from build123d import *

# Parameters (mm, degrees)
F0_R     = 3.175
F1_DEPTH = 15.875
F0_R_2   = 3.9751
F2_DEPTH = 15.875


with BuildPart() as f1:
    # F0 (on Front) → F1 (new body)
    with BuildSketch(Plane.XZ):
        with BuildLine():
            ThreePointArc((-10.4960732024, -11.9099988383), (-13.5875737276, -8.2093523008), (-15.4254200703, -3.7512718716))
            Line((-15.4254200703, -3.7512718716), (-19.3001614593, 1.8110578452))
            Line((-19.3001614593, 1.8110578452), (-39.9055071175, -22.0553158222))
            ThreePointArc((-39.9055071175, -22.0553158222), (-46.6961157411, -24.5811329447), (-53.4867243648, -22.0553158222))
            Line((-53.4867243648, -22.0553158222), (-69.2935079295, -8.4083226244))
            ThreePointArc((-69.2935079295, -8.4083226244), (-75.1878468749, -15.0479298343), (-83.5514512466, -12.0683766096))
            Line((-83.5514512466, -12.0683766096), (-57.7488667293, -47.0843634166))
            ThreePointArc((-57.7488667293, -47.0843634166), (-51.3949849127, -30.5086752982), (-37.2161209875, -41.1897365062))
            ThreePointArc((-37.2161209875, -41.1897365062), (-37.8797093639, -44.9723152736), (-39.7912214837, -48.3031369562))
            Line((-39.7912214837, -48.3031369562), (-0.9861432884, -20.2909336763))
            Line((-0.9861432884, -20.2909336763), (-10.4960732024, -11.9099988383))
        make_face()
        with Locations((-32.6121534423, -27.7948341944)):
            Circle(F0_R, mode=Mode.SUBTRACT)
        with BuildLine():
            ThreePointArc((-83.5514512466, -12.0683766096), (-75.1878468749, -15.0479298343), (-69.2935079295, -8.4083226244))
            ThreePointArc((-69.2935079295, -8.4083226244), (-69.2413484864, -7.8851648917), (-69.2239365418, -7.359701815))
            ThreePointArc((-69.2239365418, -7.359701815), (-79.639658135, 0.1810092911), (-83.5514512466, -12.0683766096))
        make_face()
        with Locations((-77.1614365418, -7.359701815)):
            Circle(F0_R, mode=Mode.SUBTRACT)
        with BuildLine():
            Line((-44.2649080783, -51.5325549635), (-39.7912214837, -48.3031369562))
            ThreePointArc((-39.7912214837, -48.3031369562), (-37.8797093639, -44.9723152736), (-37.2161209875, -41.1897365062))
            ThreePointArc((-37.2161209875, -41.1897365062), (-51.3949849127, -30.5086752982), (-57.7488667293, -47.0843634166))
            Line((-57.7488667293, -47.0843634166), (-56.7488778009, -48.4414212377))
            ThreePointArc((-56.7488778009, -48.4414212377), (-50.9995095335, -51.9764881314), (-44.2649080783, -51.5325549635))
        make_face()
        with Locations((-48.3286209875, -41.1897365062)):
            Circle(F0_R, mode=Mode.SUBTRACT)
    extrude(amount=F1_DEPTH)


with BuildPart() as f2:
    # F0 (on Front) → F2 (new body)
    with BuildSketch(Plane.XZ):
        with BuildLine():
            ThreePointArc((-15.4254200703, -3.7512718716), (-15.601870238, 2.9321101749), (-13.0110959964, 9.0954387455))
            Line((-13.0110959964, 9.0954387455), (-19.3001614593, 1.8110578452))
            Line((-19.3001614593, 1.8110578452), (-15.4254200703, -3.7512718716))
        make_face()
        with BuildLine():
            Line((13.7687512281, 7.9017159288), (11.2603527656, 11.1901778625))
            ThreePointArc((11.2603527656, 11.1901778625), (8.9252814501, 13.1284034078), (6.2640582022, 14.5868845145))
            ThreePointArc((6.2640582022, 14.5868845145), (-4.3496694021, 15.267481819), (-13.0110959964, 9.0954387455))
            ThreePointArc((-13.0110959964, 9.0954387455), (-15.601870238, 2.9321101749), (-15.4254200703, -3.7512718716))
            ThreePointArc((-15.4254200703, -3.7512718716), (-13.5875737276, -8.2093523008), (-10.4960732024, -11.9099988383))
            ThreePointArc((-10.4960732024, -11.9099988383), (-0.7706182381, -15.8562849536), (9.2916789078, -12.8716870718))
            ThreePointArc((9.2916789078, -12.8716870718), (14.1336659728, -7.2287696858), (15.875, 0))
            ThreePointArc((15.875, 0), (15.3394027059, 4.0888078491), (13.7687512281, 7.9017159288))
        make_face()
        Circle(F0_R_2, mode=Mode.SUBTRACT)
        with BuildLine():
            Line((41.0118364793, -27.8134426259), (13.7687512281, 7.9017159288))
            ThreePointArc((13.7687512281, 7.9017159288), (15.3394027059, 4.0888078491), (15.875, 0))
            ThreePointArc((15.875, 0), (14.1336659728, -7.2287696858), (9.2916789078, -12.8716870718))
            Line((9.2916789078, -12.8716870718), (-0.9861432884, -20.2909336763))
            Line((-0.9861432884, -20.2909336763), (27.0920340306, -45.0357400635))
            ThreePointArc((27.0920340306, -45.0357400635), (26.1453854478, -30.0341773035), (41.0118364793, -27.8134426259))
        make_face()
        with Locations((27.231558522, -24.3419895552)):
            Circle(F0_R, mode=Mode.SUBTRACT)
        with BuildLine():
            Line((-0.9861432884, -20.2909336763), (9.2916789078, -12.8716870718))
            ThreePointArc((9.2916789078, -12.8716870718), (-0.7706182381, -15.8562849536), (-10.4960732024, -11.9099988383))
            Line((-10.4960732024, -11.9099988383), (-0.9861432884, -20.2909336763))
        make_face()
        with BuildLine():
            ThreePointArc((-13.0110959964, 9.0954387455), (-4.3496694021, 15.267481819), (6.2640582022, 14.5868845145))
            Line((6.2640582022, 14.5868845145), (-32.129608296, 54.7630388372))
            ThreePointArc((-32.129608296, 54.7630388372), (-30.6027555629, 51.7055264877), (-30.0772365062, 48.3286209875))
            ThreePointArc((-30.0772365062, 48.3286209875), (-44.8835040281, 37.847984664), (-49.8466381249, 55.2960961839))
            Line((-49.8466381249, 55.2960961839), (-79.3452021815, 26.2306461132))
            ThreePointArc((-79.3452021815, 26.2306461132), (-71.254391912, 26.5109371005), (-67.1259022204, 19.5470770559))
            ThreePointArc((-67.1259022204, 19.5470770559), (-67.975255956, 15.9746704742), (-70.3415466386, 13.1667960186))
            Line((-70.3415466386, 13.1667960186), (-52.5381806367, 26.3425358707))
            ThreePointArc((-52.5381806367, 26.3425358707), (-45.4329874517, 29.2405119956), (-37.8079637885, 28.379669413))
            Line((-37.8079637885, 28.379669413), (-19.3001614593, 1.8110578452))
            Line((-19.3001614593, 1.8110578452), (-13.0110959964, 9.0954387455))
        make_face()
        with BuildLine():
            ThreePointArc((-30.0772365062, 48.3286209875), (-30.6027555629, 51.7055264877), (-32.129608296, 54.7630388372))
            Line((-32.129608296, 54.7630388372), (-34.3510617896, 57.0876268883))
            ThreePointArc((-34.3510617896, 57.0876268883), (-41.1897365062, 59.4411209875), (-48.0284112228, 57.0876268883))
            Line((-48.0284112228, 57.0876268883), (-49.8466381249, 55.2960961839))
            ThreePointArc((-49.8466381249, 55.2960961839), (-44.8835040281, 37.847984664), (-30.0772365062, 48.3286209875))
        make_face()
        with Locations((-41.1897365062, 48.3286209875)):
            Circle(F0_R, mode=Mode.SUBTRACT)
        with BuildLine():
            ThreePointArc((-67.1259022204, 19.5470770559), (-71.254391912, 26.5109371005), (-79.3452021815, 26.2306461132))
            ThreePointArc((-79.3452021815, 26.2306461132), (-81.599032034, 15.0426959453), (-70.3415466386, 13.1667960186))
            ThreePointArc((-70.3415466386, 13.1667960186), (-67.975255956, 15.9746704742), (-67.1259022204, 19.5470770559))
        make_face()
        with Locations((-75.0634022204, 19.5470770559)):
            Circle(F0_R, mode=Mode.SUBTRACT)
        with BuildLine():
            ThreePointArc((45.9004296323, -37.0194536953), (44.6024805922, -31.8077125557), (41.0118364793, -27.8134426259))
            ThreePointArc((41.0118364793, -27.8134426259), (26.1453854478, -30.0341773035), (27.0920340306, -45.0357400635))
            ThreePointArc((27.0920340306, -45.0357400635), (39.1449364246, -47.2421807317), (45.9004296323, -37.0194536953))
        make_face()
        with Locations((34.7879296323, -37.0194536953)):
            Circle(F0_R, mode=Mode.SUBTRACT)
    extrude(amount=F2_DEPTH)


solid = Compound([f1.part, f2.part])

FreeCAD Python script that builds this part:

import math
import FreeCAD as App
import Part
import Sketcher
from FreeCAD import Vector
Q = App.Units.Quantity

doc = App.newDocument("Part")
body = doc.addObject("PartDesign::Body", "Body")

# Sketch on XZ plane
sketch1 = body.newObject("Sketcher::SketchObject", "Sketch")
sketch1.AttachmentSupport = (doc.getObject("XZ_Plane"), [""])
sketch1.MapMode = "FlatFace"
sketch1.addGeometry(Part.ArcOfCircle(Part.Circle(Vector(0, 0, 0), Vector(0, 0, 1), 15.9), math.radians(-166), math.radians(-131)), False)
sketch1.addGeometry(Part.LineSegment(Vector(-15.4, -3.8, 0), Vector(-19.3, 1.8, 0)), False)
sketch1.addGeometry(Part.LineSegment(Vector(-19.3, 1.8, 0), Vector(-39.9, -22.1, 0)), False)
sketch1.addGeometry(Part.ArcOfCircle(Part.Circle(Vector(-46.7, -14.2, 0), Vector(0, 0, 1), 10.4), math.radians(-131), math.radians(-49)), False)
sketch1.addGeometry(Part.LineSegment(Vector(-53.5, -22.1, 0), Vector(-69.3, -8.4, 0)), False)
sketch1.addGeometry(Part.ArcOfCircle(Part.Circle(Vector(-77.2, -7.4, 0), Vector(0, 0, 1), 7.9), math.radians(-7.59), math.radians(0)), False)
sketch1.addGeometry(Part.ArcOfCircle(Part.Circle(Vector(-77.2, -7.4, 0), Vector(0, 0, 1), 7.9), math.radians(0), math.radians(216)), False)
sketch1.addGeometry(Part.LineSegment(Vector(-83.6, -12.1, 0), Vector(-57.7, -47.1, 0)), False)
sketch1.addGeometry(Part.LineSegment(Vector(-57.7, -47.1, 0), Vector(-56.7, -48.4, 0)), False)
sketch1.addGeometry(Part.ArcOfCircle(Part.Circle(Vector(-48.3, -41.2, 0), Vector(0, 0, 1), 11.1), math.radians(-139), math.radians(-69)), False)
sketch1.addGeometry(Part.LineSegment(Vector(-44.3, -51.5, 0), Vector(-1, -20.3, 0)), False)
sketch1.addGeometry(Part.LineSegment(Vector(-1, -20.3, 0), Vector(-10.5, -11.9, 0)), False)
sketch1.addGeometry(Part.Circle(Vector(-48.3, -41.2, 0), Vector(0, 0, 1), 3.2), False)
sketch1.addGeometry(Part.Circle(Vector(-32.6, -27.8, 0), Vector(0, 0, 1), 3.2), False)
sketch1.addGeometry(Part.Circle(Vector(-77.2, -7.4, 0), Vector(0, 0, 1), 3.2), False)
sketch1.addConstraint(Sketcher.Constraint("Coincident", 0, 1, 1, 1))
sketch1.addConstraint(Sketcher.Constraint("Coincident", 1, 2, 2, 1))
sketch1.addConstraint(Sketcher.Constraint("Coincident", 2, 2, 3, 2))
sketch1.addConstraint(Sketcher.Constraint("Tangent", 3, 1, 4, 1))
sketch1.addConstraint(Sketcher.Constraint("Coincident", 4, 2, 5, 1))
sketch1.addConstraint(Sketcher.Constraint("Tangent", 5, 2, 6, 1))
sketch1.addConstraint(Sketcher.Constraint("Tangent", 6, 2, 7, 1))
sketch1.addConstraint(Sketcher.Constraint("Coincident", 7, 2, 8, 1))
sketch1.addConstraint(Sketcher.Constraint("Coincident", 8, 2, 9, 1))
sketch1.addConstraint(Sketcher.Constraint("Coincident", 9, 2, 10, 1))
sketch1.addConstraint(Sketcher.Constraint("Coincident", 10, 2, 11, 1))
sketch1.addConstraint(Sketcher.Constraint("Tangent", 11, 2, 0, 2))
sketch1.addConstraint(Sketcher.Constraint("Coincident", 0, 3, -1, 1))
sketch1.addConstraint(Sketcher.Constraint("Coincident", 12, 3, 9, 3))
sketch1.addConstraint(Sketcher.Constraint("Coincident", 14, 3, 5, 3))
sketch1.addConstraint(Sketcher.Constraint("Equal", 5, 6))
sketch1.addConstraint(Sketcher.Constraint("Equal", 12, 13))
sketch1.addConstraint(Sketcher.Constraint("Equal", 13, 14))
sketch1.addConstraint(Sketcher.Constraint("Perpendicular", 2, 4))
sketch1.addConstraint(Sketcher.Constraint("Parallel", 7, 8))
sketch1.addConstraint(Sketcher.Constraint("Horizontal", 2, 2, 3, 1))
sketch1.addConstraint(Sketcher.Constraint("Horizontal", 14, 3, 5, 2))
sketch1.addConstraint(Sketcher.Constraint("Diameter", 12, Q("0.25 in")))
sketch1.addConstraint(Sketcher.Constraint("Radius", 0, Q("0.625 in")))
sketch1.addConstraint(Sketcher.Constraint("Radius", 5, Q("0.3125 in")))
sketch1.addConstraint(Sketcher.Constraint("Radius", 9, Q("0.4375 in")))
sketch1.addConstraint(Sketcher.Constraint("DistanceX", 0, 1, -1, 1, Q("0.6073 in")))
sketch1.addConstraint(Sketcher.Constraint("Radius", 3, Q("10.391116 mm")))
sketch1.addConstraint(Sketcher.Constraint("Distance", 8, Q("1.6857 mm")))
sketch1.addConstraint(Sketcher.Constraint("DistanceY", 5, 3, -1, 1, Q("7.359702 mm")))
sketch1.addConstraint(Sketcher.Constraint("DistanceY", 11, 2, -1, 1, Q("11.909999 mm")))
sketch1.addConstraint(Sketcher.Constraint("DistanceX", 9, 3, 0, 1, Q("32.903201 mm")))
sketch1.addConstraint(Sketcher.Constraint("DistanceY", 2, 2, 3, 3, Q("7.865299 mm")))
sketch1.addConstraint(Sketcher.Constraint("DistanceY", 13, 3, 10, 2, Q("7.503901 mm")))
sketch1.addConstraint(Sketcher.Constraint("Distance", 10, Q("53.376871 mm")))
sketch1.addConstraint(Sketcher.Constraint("DistanceX", 1, 2, -1, 1, Q("19.300161 mm")))
sketch1.addConstraint(Sketcher.Constraint("DistanceX", 6, 2, -1, 1, Q("83.551451 mm")))
sketch1.addConstraint(Sketcher.Constraint("DistanceY", 8, 2, -1, 1, Q("48.441421 mm")))
sketch1.addConstraint(Sketcher.Constraint("DistanceX", 9, 2, -1, 1, Q("44.264908 mm")))
sketch1.addConstraint(Sketcher.Constraint("DistanceX", 5, 3, 3, 3, Q("30.465321 mm")))
sketch1.addConstraint(Sketcher.Constraint("DistanceY", 9, 3, 3, 3, Q("26.99972 mm")))
sketch1.addConstraint(Sketcher.Constraint("DistanceY", 0, 1, 1, 2, Q("5.56233 mm")))
sketch1.addConstraint(Sketcher.Constraint("DistanceX", 13, 3, 1, 2, Q("13.311992 mm")))
pad1 = body.newObject("PartDesign::Pad", "Pad")
pad1.Profile = sketch1
pad1.Length = Q("0.625 in")
body2 = doc.addObject("PartDesign::Body", "Body001")

# Sketch on XZ plane
sketch2 = body2.newObject("Sketcher::SketchObject", "Sketch001")
sketch2.AttachmentSupport = (doc.getObject("XZ_Plane001"), [""])
sketch2.MapMode = "FlatFace"
sketch2.addGeometry(Part.LineSegment(Vector(-19.3, 1.8, 0), Vector(-15.4, -3.8, 0)), False)
sketch2.addGeometry(Part.ArcOfCircle(Part.Circle(Vector(0, 0, 0), Vector(0, 0, 1), 15.9), math.radians(-166), math.radians(-131)), False)
sketch2.addGeometry(Part.LineSegment(Vector(-10.5, -11.9, 0), Vector(-1, -20.3, 0)), False)
sketch2.addGeometry(Part.LineSegment(Vector(-1, -20.3, 0), Vector(27.1, -45, 0)), False)
sketch2.addGeometry(Part.ArcOfCircle(Part.Circle(Vector(34.8, -37, 0), Vector(0, 0, 1), 11.1), math.radians(-134), math.radians(0)), False)
sketch2.addGeometry(Part.ArcOfCircle(Part.Circle(Vector(34.8, -37, 0), Vector(0, 0, 1), 11.1), math.radians(0), math.radians(56)), False)
sketch2.addGeometry(Part.LineSegment(Vector(41, -27.8, 0), Vector(13.8, 7.9, 0)), False)
sketch2.addGeometry(Part.LineSegment(Vector(13.8, 7.9, 0), Vector(11.3, 11.2, 0)), False)
sketch2.addGeometry(Part.ArcOfCircle(Part.Circle(Vector(0, 0, 0), Vector(0, 0, 1), 15.9), math.radians(45), math.radians(67)), False)
sketch2.addGeometry(Part.LineSegment(Vector(6.3, 14.6, 0), Vector(-34.4, 57.1, 0)), False)
sketch2.addGeometry(Part.ArcOfCircle(Part.Circle(Vector(-41.2, 48.3, 0), Vector(0, 0, 1), 11.1), math.radians(52), math.radians(128)), False)
sketch2.addGeometry(Part.LineSegment(Vector(-48, 57.1, 0), Vector(-49.8, 55.3, 0)), False)
sketch2.addGeometry(Part.LineSegment(Vector(-49.8, 55.3, 0), Vector(-79.3, 26.2, 0)), False)
sketch2.addGeometry(Part.ArcOfCircle(Part.Circle(Vector(-75.1, 19.5, 0), Vector(0, 0, 1), 7.9), math.radians(123), math.radians(307)), False)
sketch2.addGeometry(Part.LineSegment(Vector(-70.3, 13.2, 0), Vector(-52.5, 26.3, 0)), False)
sketch2.addGeometry(Part.ArcOfCircle(Part.Circle(Vector(-43.3, 13.9, 0), Vector(0, 0, 1), 15.5), math.radians(69), math.radians(127)), False)
sketch2.addGeometry(Part.LineSegment(Vector(-37.8, 28.4, 0), Vector(-19.3, 1.8, 0)), False)
sketch2.addGeometry(Part.Circle(Vector(34.8, -37, 0), Vector(0, 0, 1), 3.2), False)
sketch2.addGeometry(Part.Circle(Vector(27.2, -24.3, 0), Vector(0, 0, 1), 3.2), False)
sketch2.addGeometry(Part.Circle(Vector(0, 0, 0), Vector(0, 0, 1), 4), False)
sketch2.addGeometry(Part.Circle(Vector(-75.1, 19.5, 0), Vector(0, 0, 1), 3.2), False)
sketch2.addGeometry(Part.Circle(Vector(-41.2, 48.3, 0), Vector(0, 0, 1), 3.2), False)
sketch2.addConstraint(Sketcher.Constraint("Coincident", 0, 2, 1, 1))
sketch2.addConstraint(Sketcher.Constraint("Tangent", 1, 2, 2, 1))
sketch2.addConstraint(Sketcher.Constraint("Coincident", 2, 2, 3, 1))
sketch2.addConstraint(Sketcher.Constraint("Coincident", 3, 2, 4, 1))
sketch2.addConstraint(Sketcher.Constraint("Tangent", 4, 2, 5, 1))
sketch2.addConstraint(Sketcher.Constraint("Coincident", 5, 2, 6, 1))
sketch2.addConstraint(Sketcher.Constraint("Coincident", 6, 2, 7, 1))
sketch2.addConstraint(Sketcher.Constraint("Coincident", 7, 2, 8, 1))
sketch2.addConstraint(Sketcher.Constraint("Coincident", 8, 2, 9, 1))
sketch2.addConstraint(Sketcher.Constraint("Coincident", 9, 2, 10, 1))
sketch2.addConstraint(Sketcher.Constraint("Coincident", 10, 2, 11, 1))
sketch2.addConstraint(Sketcher.Constraint("Coincident", 11, 2, 12, 1))
sketch2.addConstraint(Sketcher.Constraint("Coincident", 12, 2, 13, 1))
sketch2.addConstraint(Sketcher.Constraint("Tangent", 13, 2, 14, 1))
sketch2.addConstraint(Sketcher.Constraint("Tangent", 14, 2, 15, 2))
sketch2.addConstraint(Sketcher.Constraint("Coincident", 15, 1, 16, 1))
sketch2.addConstraint(Sketcher.Constraint("Coincident", 16, 2, 0, 1))
sketch2.addConstraint(Sketcher.Constraint("Coincident", 1, 3, -1, 1))
sketch2.addConstraint(Sketcher.Constraint("Coincident", 8, 3, -1, 1))
sketch2.addConstraint(Sketcher.Constraint("Coincident", 19, 3, -1, 1))
sketch2.addConstraint(Sketcher.Constraint("Coincident", 17, 3, 4, 3))
sketch2.addConstraint(Sketcher.Constraint("Coincident", 20, 3, 13, 3))
sketch2.addConstraint(Sketcher.Constraint("Coincident", 21, 3, 10, 3))
sketch2.addConstraint(Sketcher.Constraint("Equal", 4, 5))
sketch2.addConstraint(Sketcher.Constraint("Equal", 1, 8))
sketch2.addConstraint(Sketcher.Constraint("Equal", 5, 10))
sketch2.addConstraint(Sketcher.Constraint("Equal", 17, 18))
sketch2.addConstraint(Sketcher.Constraint("Equal", 18, 20))
sketch2.addConstraint(Sketcher.Constraint("Equal", 20, 21))
sketch2.addConstraint(Sketcher.Constraint("Parallel", 2, 3))
sketch2.addConstraint(Sketcher.Constraint("Parallel", 6, 7))
sketch2.addConstraint(Sketcher.Constraint("Parallel", 11, 12))
sketch2.addConstraint(Sketcher.Constraint("Parallel", 0, 16))
sketch2.addConstraint(Sketcher.Constraint("Horizontal", 17, 3, 4, 2))
sketch2.addConstraint(Sketcher.Constraint("Horizontal", 9, 2, 10, 2))
sketch2.addConstraint(Sketcher.Constraint("Diameter", 17, Q("0.25 in")))
sketch2.addConstraint(Sketcher.Constraint("Diameter", 19, Q("0.313 in")))
sketch2.addConstraint(Sketcher.Constraint("Radius", 1, Q("0.625 in")))
sketch2.addConstraint(Sketcher.Constraint("Radius", 4, Q("0.4375 in")))
sketch2.addConstraint(Sketcher.Constraint("Radius", 13, Q("0.3125 in")))
sketch2.addConstraint(Sketcher.Constraint("Radius", 15, Q("15.517349 mm")))
sketch2.addConstraint(Sketcher.Constraint("DistanceX", 0, 2, -1, 1, Q("0.6073 in")))
sketch2.addConstraint(Sketcher.Constraint("DistanceX", 13, 3, 13, 2, Q("0.1858998 in")))
sketch2.addConstraint(Sketcher.Constraint("DistanceY", 1, 2, -1, 1, Q("11.909999 mm")))
sketch2.addConstraint(Sketcher.Constraint("DistanceX", 7, 2, 6, 2, Q("2.508398 mm")))
sketch2.addConstraint(Sketcher.Constraint("DistanceX", 11, 2, 10, 3, Q("8.656902 mm")))
sketch2.addConstraint(Sketcher.Constraint("DistanceX", 12, 2, 13, 3, Q("4.2818 mm")))
sketch2.addConstraint(Sketcher.Constraint("DistanceX", 15, 1, 9, 2, Q("3.456902 mm")))
sketch2.addConstraint(Sketcher.Constraint("Distance", 14, Q("22.148588 mm")))
sketch2.addConstraint(Sketcher.Constraint("DistanceX", -1, 1, 4, 3, Q("34.78793 mm")))
sketch2.addConstraint(Sketcher.Constraint("DistanceY", -1, 1, 10, 3, Q("48.328621 mm")))
sketch2.addConstraint(Sketcher.Constraint("DistanceX", 15, 3, -1, 1, Q("43.307229 mm")))
sketch2.addConstraint(Sketcher.Constraint("DistanceY", -1, 1, 15, 3, Q("13.869459 mm")))
sketch2.addConstraint(Sketcher.Constraint("DistanceX", -1, 1, 18, 3, Q("27.231559 mm")))
sketch2.addConstraint(Sketcher.Constraint("DistanceY", 18, 3, -1, 1, Q("24.34199 mm")))
sketch2.addConstraint(Sketcher.Constraint("DistanceY", 3, 2, -1, 1, Q("45.03574 mm")))
sketch2.addConstraint(Sketcher.Constraint("DistanceX", -1, 1, 6, 2, Q("13.768751 mm")))
sketch2.addConstraint(Sketcher.Constraint("DistanceX", -1, 1, 8, 2, Q("6.264058 mm")))
sketch2.addConstraint(Sketcher.Constraint("DistanceX", 9, 2, -1, 1, Q("34.351062 mm")))
sketch2.addConstraint(Sketcher.Constraint("DistanceX", 10, 2, -1, 1, Q("48.028411 mm")))
sketch2.addConstraint(Sketcher.Constraint("DistanceX", 16, 2, -1, 1, Q("19.300161 mm")))
sketch2.addConstraint(Sketcher.Constraint("DistanceX", 1, 2, 2, 2, Q("9.50993 mm")))
sketch2.addConstraint(Sketcher.Constraint("DistanceY", 4, 2, 5, 2, Q("9.206011 mm")))
pad2 = body2.newObject("PartDesign::Pad", "Pad001")
pad2.Profile = sketch2
pad2.Length = Q("0.625 in")

doc.recompute()
